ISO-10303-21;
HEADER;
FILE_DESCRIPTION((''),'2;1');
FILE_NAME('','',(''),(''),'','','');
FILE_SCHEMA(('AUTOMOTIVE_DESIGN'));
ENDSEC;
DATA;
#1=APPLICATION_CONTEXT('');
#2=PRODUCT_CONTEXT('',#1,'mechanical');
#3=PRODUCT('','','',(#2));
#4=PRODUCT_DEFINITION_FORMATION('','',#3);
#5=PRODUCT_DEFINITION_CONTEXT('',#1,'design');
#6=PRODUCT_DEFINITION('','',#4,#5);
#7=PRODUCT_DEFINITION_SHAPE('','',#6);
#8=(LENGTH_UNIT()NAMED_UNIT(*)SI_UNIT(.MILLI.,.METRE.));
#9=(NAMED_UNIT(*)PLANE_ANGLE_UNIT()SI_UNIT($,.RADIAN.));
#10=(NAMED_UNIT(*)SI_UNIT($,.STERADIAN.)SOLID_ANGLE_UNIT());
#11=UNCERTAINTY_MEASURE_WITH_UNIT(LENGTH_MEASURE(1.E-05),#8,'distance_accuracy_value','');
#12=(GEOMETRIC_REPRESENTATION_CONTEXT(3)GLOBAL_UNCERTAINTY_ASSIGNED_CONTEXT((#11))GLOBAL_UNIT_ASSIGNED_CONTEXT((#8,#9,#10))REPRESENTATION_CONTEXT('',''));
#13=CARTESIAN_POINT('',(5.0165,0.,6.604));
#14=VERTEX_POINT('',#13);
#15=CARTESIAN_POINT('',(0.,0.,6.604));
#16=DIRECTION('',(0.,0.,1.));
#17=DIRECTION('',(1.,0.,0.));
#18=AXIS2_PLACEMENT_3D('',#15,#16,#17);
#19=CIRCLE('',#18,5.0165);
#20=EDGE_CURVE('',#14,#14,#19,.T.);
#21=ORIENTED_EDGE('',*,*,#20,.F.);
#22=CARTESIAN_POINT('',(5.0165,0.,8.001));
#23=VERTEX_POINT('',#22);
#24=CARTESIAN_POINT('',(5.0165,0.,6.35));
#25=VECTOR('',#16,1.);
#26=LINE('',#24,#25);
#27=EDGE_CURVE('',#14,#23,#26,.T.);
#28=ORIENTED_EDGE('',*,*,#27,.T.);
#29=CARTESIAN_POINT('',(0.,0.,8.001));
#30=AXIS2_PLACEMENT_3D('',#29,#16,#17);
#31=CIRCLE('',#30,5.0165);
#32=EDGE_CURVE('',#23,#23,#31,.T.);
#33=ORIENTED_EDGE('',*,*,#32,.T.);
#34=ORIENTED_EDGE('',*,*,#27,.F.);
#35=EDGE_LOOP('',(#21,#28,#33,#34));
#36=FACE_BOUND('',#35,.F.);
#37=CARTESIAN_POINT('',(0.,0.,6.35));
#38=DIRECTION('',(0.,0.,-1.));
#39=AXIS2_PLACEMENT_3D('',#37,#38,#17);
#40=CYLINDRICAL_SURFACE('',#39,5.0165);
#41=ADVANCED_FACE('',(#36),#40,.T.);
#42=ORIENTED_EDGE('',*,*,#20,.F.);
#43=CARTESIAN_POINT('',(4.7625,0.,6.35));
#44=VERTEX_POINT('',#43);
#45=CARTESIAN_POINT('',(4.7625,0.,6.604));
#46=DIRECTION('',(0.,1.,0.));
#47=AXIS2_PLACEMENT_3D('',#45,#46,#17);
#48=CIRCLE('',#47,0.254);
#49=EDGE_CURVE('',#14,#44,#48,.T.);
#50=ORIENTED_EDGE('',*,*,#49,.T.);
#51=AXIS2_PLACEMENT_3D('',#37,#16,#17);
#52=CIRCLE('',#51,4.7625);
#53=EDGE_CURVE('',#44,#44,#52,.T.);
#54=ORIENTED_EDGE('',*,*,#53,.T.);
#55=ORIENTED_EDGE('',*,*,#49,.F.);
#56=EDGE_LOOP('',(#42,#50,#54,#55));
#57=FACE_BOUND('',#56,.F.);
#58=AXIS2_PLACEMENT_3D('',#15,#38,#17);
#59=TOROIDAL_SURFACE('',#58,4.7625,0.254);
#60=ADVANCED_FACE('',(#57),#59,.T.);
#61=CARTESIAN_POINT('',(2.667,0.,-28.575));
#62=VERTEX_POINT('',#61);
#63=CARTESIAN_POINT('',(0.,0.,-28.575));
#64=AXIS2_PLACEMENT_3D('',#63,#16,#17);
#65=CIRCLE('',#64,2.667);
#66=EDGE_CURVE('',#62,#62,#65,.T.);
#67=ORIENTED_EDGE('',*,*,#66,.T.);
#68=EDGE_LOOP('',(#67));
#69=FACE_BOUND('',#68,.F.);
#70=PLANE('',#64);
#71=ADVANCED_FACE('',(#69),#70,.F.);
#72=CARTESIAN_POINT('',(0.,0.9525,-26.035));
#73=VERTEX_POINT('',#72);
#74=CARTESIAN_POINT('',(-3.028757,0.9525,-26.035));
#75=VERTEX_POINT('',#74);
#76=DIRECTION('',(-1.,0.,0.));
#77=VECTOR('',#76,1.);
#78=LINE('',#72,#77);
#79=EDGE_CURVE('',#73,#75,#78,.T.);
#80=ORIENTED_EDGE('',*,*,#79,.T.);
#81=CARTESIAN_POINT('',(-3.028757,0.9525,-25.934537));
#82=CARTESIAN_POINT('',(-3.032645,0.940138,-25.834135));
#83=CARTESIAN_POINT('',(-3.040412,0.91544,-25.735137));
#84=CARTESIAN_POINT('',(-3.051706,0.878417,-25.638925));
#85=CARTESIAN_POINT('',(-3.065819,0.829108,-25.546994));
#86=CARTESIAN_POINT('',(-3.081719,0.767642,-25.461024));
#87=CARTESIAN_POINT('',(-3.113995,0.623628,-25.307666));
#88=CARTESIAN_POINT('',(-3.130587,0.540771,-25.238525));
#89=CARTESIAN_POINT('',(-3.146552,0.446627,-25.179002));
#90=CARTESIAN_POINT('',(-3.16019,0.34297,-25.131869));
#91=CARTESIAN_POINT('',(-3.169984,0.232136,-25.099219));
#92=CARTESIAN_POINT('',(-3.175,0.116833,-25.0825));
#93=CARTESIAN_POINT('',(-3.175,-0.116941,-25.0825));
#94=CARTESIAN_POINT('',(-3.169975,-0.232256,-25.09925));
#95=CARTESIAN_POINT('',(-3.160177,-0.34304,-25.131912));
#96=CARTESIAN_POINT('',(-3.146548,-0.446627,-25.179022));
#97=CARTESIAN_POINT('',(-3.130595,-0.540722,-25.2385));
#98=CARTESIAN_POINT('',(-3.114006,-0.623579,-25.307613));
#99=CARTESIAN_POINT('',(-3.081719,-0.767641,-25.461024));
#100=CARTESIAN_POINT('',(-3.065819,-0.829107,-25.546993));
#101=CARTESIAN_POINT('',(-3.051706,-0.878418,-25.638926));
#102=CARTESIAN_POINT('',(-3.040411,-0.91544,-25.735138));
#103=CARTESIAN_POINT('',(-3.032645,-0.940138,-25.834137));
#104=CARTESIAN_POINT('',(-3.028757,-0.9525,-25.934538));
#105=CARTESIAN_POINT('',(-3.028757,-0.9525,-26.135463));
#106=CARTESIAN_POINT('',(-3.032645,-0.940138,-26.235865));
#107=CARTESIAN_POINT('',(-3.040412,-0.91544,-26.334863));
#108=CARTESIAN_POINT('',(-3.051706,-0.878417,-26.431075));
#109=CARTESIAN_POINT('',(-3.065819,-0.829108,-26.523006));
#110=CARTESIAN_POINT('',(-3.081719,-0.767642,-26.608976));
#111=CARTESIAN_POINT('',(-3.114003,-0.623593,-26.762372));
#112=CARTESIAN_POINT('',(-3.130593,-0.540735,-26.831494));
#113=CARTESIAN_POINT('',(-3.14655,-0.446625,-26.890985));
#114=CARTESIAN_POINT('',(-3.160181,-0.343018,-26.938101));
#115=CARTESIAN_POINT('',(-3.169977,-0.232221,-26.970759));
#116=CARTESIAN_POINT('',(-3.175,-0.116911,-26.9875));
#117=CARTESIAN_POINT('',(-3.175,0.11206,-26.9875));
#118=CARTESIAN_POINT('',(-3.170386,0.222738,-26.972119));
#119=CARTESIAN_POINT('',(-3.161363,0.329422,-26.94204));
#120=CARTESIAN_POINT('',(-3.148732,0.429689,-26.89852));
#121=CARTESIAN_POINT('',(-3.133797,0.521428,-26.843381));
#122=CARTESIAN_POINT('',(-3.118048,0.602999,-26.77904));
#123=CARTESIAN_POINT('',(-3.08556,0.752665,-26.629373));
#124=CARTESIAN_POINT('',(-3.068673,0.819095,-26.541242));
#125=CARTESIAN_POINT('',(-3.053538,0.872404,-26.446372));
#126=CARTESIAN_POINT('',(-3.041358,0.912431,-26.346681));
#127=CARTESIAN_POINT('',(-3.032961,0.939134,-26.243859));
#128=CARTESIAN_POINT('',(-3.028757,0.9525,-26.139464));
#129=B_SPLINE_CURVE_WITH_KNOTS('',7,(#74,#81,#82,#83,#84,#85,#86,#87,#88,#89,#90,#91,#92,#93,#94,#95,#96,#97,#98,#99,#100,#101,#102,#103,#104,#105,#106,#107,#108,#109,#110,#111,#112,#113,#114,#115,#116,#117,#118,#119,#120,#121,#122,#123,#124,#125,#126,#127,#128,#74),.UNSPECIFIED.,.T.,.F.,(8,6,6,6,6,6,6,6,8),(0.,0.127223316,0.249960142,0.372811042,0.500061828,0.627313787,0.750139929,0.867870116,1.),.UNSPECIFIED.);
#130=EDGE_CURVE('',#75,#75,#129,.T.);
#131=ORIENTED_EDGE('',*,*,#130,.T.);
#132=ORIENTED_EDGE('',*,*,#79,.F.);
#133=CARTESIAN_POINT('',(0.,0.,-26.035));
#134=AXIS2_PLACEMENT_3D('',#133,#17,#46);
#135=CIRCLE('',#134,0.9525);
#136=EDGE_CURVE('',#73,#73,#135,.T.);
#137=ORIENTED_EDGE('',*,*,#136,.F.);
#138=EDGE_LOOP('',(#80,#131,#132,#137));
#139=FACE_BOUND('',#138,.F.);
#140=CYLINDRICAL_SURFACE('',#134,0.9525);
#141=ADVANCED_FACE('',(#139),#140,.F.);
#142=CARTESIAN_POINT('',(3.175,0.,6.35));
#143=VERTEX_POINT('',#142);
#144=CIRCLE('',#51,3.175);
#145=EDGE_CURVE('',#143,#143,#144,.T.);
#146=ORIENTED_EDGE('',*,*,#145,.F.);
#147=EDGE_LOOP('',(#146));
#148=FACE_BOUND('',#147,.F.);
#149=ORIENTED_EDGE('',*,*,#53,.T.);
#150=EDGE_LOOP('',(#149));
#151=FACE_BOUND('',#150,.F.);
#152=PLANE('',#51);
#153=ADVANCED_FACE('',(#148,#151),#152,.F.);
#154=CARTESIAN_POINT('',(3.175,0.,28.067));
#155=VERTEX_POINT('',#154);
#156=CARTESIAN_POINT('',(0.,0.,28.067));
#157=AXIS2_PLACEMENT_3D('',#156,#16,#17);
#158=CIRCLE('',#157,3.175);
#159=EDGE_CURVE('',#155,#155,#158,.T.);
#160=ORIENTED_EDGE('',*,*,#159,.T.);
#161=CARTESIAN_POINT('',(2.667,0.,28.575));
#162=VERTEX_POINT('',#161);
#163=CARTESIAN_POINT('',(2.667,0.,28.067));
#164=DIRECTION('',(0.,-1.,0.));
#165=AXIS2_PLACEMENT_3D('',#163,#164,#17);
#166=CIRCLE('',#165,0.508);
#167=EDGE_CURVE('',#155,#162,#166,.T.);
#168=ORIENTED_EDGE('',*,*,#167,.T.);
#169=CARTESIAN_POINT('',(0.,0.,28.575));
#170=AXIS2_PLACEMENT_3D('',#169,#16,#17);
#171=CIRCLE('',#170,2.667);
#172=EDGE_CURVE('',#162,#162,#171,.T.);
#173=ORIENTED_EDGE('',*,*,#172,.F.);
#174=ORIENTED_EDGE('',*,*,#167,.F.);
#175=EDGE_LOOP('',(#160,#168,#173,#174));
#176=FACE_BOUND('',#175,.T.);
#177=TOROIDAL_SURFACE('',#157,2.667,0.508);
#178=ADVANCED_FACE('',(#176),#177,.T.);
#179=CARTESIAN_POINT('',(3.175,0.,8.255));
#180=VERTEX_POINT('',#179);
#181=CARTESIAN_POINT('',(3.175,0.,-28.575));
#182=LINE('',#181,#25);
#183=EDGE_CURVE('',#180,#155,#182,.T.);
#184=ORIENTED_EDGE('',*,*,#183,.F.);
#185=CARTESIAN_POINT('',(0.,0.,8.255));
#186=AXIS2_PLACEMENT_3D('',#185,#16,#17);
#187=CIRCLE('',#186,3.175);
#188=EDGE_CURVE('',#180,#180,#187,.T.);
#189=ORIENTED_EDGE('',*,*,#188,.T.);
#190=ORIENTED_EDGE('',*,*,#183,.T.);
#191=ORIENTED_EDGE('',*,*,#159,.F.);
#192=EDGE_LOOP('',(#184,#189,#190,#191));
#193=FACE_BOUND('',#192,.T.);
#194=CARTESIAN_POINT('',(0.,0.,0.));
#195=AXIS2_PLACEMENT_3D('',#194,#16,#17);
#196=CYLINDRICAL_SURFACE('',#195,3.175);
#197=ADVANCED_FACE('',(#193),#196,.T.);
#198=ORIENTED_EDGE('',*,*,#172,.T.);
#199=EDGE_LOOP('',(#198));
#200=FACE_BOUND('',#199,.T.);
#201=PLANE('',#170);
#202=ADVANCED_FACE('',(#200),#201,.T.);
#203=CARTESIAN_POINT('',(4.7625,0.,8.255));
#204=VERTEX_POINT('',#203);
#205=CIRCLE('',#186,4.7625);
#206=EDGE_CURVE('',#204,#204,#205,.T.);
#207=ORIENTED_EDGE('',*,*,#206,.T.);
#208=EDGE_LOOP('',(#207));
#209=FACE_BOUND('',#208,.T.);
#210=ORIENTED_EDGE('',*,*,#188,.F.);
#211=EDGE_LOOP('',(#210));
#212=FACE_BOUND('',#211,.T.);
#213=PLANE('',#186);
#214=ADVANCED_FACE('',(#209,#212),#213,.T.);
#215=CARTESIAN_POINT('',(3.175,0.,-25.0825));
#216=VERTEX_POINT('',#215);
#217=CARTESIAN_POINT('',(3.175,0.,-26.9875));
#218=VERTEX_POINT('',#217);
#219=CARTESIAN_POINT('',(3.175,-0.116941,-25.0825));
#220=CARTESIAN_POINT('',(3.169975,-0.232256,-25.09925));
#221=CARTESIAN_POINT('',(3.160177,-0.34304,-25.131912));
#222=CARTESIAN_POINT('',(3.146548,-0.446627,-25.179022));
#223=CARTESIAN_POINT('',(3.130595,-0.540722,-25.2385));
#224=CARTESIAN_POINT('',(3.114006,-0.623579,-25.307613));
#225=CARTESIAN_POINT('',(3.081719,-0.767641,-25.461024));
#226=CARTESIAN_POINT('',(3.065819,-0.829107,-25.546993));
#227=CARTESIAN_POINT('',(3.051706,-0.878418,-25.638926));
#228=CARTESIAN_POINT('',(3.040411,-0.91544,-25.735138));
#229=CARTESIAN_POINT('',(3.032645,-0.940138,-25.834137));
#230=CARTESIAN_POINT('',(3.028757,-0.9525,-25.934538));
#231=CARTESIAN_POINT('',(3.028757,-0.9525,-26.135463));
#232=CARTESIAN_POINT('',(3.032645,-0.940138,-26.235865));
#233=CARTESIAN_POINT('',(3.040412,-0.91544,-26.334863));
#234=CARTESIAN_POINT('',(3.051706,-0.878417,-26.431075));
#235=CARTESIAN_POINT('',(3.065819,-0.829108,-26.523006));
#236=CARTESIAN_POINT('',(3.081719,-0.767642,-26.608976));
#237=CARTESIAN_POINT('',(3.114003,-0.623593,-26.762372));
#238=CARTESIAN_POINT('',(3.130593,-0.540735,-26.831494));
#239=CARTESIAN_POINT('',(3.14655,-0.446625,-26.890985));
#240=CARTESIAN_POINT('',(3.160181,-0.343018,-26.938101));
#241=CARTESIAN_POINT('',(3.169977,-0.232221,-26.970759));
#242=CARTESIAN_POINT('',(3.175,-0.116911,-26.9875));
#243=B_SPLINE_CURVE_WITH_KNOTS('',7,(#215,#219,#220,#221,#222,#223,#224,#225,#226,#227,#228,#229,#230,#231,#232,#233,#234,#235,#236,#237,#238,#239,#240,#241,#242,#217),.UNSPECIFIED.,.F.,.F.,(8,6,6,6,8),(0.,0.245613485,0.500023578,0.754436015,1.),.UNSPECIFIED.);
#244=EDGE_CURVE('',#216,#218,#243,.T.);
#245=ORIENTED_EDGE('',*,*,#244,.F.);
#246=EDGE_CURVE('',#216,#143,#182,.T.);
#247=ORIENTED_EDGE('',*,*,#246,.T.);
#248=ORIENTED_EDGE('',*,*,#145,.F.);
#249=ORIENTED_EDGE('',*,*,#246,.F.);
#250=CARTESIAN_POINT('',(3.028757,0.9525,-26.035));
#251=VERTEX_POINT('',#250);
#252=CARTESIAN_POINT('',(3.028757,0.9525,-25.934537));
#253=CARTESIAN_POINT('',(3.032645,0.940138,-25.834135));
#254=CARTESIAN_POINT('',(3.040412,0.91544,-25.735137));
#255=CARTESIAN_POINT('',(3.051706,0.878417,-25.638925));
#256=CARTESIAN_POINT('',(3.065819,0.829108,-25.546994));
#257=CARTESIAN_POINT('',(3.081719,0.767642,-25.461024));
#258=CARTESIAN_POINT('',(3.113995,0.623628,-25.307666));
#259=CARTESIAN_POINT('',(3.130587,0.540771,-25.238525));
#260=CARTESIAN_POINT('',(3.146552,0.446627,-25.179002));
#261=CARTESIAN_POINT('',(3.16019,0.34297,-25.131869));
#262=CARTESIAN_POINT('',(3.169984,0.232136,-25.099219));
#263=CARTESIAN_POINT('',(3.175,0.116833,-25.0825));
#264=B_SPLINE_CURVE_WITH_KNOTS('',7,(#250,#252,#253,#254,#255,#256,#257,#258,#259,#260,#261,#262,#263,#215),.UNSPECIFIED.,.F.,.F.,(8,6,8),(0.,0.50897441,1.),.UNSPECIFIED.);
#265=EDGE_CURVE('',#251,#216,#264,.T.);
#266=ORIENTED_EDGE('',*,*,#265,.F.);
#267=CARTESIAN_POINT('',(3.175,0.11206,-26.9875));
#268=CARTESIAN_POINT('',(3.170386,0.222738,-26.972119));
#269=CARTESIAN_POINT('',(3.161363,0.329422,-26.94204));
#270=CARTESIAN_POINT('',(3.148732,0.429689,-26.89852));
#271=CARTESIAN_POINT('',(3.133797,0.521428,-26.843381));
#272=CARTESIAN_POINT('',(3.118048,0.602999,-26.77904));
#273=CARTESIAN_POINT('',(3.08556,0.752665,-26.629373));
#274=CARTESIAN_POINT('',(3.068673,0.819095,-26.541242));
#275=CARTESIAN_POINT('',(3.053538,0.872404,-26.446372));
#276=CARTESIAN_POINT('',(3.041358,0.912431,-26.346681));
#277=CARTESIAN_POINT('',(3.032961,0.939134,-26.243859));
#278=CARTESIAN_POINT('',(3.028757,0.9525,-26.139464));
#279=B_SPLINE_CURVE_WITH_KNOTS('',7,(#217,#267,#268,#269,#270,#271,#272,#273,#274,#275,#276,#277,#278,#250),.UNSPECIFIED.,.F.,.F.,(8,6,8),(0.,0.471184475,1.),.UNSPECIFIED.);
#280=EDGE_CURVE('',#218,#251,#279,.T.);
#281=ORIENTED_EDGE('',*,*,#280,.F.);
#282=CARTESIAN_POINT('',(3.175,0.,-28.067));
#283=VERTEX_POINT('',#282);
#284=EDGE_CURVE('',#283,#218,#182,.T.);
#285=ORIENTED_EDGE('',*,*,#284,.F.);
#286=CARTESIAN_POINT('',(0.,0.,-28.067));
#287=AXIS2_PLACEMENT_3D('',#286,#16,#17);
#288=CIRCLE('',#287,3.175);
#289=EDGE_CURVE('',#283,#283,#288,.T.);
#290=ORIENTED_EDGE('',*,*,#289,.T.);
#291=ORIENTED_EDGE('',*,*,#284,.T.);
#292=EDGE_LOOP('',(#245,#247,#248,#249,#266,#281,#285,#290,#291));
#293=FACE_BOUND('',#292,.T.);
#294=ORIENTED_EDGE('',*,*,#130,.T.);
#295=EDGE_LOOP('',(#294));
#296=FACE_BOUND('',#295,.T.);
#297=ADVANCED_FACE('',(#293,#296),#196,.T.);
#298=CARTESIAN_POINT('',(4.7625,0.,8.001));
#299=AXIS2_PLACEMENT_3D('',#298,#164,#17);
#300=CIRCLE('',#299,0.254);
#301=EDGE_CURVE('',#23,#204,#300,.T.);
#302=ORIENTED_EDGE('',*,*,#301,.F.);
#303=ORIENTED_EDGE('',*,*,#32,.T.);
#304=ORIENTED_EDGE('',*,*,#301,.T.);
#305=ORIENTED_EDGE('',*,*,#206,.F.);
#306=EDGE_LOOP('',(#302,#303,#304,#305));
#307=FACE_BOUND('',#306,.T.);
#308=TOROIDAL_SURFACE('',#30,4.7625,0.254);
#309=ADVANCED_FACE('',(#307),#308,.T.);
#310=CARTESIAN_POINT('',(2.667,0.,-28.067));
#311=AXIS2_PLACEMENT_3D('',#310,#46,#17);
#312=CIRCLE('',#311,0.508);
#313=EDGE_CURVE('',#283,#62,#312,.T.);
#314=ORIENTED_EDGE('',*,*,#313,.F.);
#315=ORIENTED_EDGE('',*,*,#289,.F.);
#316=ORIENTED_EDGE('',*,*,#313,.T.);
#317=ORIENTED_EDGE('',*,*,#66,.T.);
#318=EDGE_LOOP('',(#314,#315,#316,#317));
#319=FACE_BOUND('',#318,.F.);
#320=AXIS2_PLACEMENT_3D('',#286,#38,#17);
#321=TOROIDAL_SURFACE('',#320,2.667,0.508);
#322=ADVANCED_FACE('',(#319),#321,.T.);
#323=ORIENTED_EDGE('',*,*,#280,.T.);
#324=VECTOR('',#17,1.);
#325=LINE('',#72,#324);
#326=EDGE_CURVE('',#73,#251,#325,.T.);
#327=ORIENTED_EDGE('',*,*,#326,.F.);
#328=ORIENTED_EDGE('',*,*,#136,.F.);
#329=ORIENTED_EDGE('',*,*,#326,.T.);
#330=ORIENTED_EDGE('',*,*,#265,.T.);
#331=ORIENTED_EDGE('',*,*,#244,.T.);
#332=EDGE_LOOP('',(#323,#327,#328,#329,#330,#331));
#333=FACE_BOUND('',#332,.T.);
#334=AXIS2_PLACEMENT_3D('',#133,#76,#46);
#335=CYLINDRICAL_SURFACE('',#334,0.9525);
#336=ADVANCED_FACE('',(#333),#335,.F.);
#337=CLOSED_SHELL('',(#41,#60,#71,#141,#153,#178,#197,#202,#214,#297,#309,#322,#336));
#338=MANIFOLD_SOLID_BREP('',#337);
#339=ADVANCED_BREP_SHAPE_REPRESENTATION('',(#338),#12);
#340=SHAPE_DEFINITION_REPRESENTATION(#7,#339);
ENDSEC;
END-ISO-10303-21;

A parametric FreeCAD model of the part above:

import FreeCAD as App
import Part
import Sketcher
Q = App.Units.Quantity


def edges_at(feature, points):
    """Names of the edges that pass closest to the given points."""
    edges = feature.Shape.Edges
    near = lambda p: min(range(len(edges)), key=lambda i: edges[i].distToShape(Part.Vertex(*p))[0])
    return sorted({f"Edge{near(p) + 1}" for p in points})

doc = App.newDocument("Part")
body = doc.addObject("PartDesign::Body", "Body")

# Sketch on XY plane
sketch1 = body.newObject("Sketcher::SketchObject", "Sketch")
sketch1.AttachmentSupport = (doc.getObject("XY_Plane"), [""])
sketch1.MapMode = "FlatFace"
sketch1.addGeometry(Part.Circle(App.Vector(0, 0, 0), App.Vector(0, 0, 1), 3.2), False)
sketch1.addConstraint(Sketcher.Constraint("Coincident", 0, 3, -1, 1))
sketch1.addConstraint(Sketcher.Constraint("Diameter", 0, Q("0.25 in")))
pad1 = body.newObject("PartDesign::Pad", "Pad")
pad1.Profile = sketch1
pad1.Length = Q("2.25 in")
pad1.Midplane = True

# Sketch on XY plane
sketch2 = body.newObject("Sketcher::SketchObject", "Sketch001")
sketch2.AttachmentSupport = (doc.getObject("XY_Plane"), [""])
sketch2.MapMode = "FlatFace"
sketch2.AttachmentOffset = App.Placement(App.Vector(0, 0, 0.25 * 25.4), App.Rotation())
sketch2.addGeometry(Part.Circle(App.Vector(0, 0, 0), App.Vector(0, 0, 1), 5), False)
sketch2.addConstraint(Sketcher.Constraint("Coincident", 0, 3, -1, 1))
sketch2.addConstraint(Sketcher.Constraint("Diameter", 0, Q("0.395 in")))
pad2 = body.newObject("PartDesign::Pad", "Pad001")
pad2.Profile = sketch2
pad2.Length = Q("0.075 in")
doc.recompute()

fillet = body.newObject("PartDesign::Fillet", "Fillet")
fillet.Base = (pad2, edges_at(pad2, [(-5.016, 0, 8.255), (-5.016, 0, 6.35)]))
fillet.Radius = Q("0.01 in")

# Sketch on YZ plane
sketch3 = body.newObject("Sketcher::SketchObject", "Sketch002")
sketch3.AttachmentSupport = (doc.getObject("YZ_Plane"), [""])
sketch3.MapMode = "FlatFace"
sketch3.addGeometry(Part.Circle(App.Vector(0, -26, 0), App.Vector(0, 0, 1), 1), False)
sketch3.addConstraint(Sketcher.Constraint("PointOnObject", 0, 3, -2))
sketch3.addConstraint(Sketcher.Constraint("Diameter", 0, Q("0.075 in")))
sketch3.addConstraint(Sketcher.Constraint("DistanceY", 0, 3, -1, 1, Q("1.025 in")))
pocket1 = body.newObject("PartDesign::Pocket", "Pocket")
pocket1.Profile = sketch3
pocket1.Type = "ThroughAll"
pocket1.Midplane = True
doc.recompute()

fillet2 = body.newObject("PartDesign::Fillet", "Fillet001")
fillet2.Base = (pocket1, edges_at(pocket1, [(-3.175, 0, 28.575), (-3.175, 0, -28.575)]))
fillet2.Radius = Q("0.02 in")

doc.recompute()
